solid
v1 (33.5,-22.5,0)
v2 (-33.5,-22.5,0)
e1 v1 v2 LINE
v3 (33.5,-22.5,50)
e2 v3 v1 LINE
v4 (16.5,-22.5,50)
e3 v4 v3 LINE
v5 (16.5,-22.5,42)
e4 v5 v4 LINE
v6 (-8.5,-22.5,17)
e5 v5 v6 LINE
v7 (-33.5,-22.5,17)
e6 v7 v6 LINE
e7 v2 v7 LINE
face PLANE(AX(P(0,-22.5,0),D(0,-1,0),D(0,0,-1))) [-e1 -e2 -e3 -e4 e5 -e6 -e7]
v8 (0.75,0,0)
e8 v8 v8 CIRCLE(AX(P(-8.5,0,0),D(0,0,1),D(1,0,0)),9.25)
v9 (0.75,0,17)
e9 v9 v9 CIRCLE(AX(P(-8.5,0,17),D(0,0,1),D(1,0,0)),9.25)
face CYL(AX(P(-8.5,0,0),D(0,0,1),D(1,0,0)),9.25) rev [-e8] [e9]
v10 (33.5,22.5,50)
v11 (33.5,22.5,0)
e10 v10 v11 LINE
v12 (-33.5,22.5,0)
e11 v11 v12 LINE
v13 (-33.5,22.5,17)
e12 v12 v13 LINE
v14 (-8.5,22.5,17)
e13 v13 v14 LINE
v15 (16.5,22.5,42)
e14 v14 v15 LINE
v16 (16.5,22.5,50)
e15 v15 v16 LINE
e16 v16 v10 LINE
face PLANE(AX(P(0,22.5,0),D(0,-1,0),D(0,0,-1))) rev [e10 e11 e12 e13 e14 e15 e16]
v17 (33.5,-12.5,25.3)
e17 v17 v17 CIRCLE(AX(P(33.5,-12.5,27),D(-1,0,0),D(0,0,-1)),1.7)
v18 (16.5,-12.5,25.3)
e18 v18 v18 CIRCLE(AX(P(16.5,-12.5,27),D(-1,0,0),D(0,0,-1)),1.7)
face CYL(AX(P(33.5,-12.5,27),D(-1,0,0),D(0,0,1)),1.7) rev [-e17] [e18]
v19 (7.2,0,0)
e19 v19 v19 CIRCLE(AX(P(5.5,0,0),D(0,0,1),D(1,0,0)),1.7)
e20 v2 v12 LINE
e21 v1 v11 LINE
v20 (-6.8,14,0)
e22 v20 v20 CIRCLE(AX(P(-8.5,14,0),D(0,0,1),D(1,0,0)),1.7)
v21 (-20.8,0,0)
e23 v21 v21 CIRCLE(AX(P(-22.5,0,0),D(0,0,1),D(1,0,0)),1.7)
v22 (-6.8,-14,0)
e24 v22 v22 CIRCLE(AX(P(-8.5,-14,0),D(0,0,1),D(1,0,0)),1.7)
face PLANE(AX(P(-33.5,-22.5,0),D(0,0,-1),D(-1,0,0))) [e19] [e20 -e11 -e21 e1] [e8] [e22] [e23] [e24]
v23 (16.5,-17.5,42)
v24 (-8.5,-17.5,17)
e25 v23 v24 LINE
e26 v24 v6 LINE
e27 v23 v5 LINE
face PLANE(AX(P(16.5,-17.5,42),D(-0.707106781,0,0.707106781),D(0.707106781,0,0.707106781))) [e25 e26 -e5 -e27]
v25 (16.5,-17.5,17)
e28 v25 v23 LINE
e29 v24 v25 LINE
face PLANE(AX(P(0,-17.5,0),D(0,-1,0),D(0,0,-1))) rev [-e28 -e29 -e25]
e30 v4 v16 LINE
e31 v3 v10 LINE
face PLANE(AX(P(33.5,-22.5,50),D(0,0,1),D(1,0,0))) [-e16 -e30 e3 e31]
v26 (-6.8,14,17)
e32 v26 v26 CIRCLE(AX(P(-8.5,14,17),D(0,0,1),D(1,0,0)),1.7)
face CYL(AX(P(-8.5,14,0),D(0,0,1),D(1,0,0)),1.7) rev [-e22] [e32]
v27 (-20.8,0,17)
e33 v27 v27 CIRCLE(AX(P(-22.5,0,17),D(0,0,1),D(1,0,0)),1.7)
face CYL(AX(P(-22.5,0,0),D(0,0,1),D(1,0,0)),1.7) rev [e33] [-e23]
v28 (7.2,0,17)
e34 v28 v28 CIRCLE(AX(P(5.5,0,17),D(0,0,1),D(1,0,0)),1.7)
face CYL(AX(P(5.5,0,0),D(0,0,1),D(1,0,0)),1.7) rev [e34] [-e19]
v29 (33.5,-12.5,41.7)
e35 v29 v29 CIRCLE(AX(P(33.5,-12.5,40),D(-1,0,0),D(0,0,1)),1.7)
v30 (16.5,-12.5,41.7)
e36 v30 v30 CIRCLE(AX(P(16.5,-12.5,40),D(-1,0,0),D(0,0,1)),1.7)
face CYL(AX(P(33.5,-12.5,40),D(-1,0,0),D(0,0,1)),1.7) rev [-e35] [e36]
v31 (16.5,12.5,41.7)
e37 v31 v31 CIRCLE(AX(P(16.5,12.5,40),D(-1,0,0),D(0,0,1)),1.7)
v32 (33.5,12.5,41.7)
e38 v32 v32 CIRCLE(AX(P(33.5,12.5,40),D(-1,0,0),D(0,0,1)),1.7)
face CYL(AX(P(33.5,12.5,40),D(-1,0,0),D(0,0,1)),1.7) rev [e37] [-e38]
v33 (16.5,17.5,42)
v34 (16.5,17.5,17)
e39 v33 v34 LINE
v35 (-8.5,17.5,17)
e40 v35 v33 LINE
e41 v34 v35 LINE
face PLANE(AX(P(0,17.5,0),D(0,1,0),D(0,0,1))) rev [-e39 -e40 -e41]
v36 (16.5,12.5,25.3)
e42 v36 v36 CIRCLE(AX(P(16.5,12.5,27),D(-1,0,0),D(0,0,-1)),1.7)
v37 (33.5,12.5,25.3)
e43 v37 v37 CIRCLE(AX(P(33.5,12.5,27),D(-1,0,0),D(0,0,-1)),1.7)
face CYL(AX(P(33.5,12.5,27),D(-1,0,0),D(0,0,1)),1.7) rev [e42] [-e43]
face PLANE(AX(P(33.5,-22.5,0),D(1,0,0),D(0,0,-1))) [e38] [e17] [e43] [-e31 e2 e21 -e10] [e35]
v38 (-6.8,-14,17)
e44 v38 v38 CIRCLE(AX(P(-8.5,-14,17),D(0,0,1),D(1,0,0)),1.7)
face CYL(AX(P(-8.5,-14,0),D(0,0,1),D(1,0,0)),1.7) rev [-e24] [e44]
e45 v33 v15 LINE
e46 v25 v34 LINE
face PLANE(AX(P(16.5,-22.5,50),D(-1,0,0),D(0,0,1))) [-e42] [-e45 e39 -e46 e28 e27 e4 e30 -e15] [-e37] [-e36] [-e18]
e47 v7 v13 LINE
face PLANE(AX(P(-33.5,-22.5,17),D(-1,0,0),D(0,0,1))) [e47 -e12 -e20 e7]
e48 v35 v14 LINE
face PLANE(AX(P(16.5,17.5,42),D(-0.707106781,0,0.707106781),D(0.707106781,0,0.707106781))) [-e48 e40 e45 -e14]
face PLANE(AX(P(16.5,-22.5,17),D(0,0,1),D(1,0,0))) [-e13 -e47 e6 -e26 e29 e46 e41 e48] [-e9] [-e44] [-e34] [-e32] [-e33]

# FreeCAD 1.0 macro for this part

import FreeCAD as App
import Part
import Sketcher

doc = App.newDocument("Part")
body = doc.addObject("PartDesign::Body", "Body")

sketch1 = body.newObject("Sketcher::SketchObject", "Sketch")
sketch1.AttachmentSupport = (doc.getObject("XZ_Plane"), [""])
sketch1.MapMode = "FlatFace"
sketch1.addGeometry([
    Part.LineSegment(App.Vector(16, 50, 0), App.Vector(34, 50, 0)),
    Part.LineSegment(App.Vector(34, 50, 0), App.Vector(34, 0, 0)),
    Part.LineSegment(App.Vector(34, 0, 0), App.Vector(-34, 0, 0)),
    Part.LineSegment(App.Vector(-34, 0, 0), App.Vector(-34, 17, 0)),
    Part.LineSegment(App.Vector(-34, 17, 0), App.Vector(16, 17, 0)),
    Part.LineSegment(App.Vector(16, 17, 0), App.Vector(16, 50, 0)),
], False)
sketch1.addConstraint([
    Sketcher.Constraint("Coincident", 0, 2, 1, 1),
    Sketcher.Constraint("Coincident", 1, 2, 2, 1),
    Sketcher.Constraint("Coincident", 2, 2, 3, 1),
    Sketcher.Constraint("Coincident", 3, 2, 4, 1),
    Sketcher.Constraint("Coincident", 4, 2, 5, 1),
    Sketcher.Constraint("Coincident", 5, 2, 0, 1),
    Sketcher.Constraint("Horizontal", 0),
    Sketcher.Constraint("Vertical", 1),
    Sketcher.Constraint("Horizontal", 2),
    Sketcher.Constraint("Vertical", 3),
    Sketcher.Constraint("Horizontal", 4),
    Sketcher.Constraint("Vertical", 5),
    Sketcher.Constraint("Symmetric", 1, 2, 2, 2, -1, 1),
    Sketcher.Constraint("Equal", 4, 1),
    Sketcher.Constraint("Equal", 0, 3),
    Sketcher.Constraint("DistanceX", 0, 1, 0, 2, 17.0),
    Sketcher.Constraint("DistanceX", 2, 2, 2, 1, 67.0),
])
pad1 = body.newObject("PartDesign::Pad", "Pad")
pad1.Profile = sketch1
pad1.Length = 45
pad1.Midplane = True

sketch2 = body.newObject("Sketcher::SketchObject", "Sketch001")
sketch2.AttachmentSupport = (doc.getObject("XY_Plane"), [""])
sketch2.MapMode = "FlatFace"
sketch2.AttachmentOffset = App.Placement(App.Vector(0, 0, 17), App.Rotation())
sketch2.addGeometry([
    Part.Circle(App.Vector(-8.5, 0, 0), App.Vector(0, 0, 1), 9.2),
    Part.Circle(App.Vector(-8.5, 14, 0), App.Vector(0, 0, 1), 1.7),
    Part.Circle(App.Vector(5.5, 0, 0), App.Vector(0, 0, 1), 1.7),
    Part.Circle(App.Vector(-8.5, -14, 0), App.Vector(0, 0, 1), 1.7),
    Part.Circle(App.Vector(-22.5, 0, 0), App.Vector(0, 0, 1), 1.7),
], False)
sketch2.addConstraint([
    Sketcher.Constraint("Equal", 1, 2),
    Sketcher.Constraint("Equal", 2, 3),
    Sketcher.Constraint("Equal", 3, 4),
    Sketcher.Constraint("Symmetric", 1, 3, 3, 3, -1),
    Sketcher.Constraint("PointOnObject", 0, 3, -1),
    Sketcher.Constraint("PointOnObject", 2, 3, -1),
    Sketcher.Constraint("PointOnObject", 4, 3, -1),
    Sketcher.Constraint("Vertical", 0, 3, 1, 3),
    Sketcher.Constraint("Diameter", 0, 18.5),
    Sketcher.Constraint("Diameter", 1, 3.4),
    Sketcher.Constraint("DistanceY", -1, 1, 1, 3, 14.0),
    Sketcher.Constraint("DistanceX", 0, 3, 2, 3, 14.0),
    Sketcher.Constraint("DistanceX", 4, 3, 0, 3, 14.0),
    Sketcher.Constraint("DistanceX", 0, 3, -1, 1, 8.5),
])
pocket1 = body.newObject("PartDesign::Pocket", "Pocket")
pocket1.Profile = sketch2
pocket1.Type = "ThroughAll"

sketch3 = body.newObject("Sketcher::SketchObject", "Sketch002")
sketch3.AttachmentSupport = (doc.getObject("YZ_Plane"), [""])
sketch3.MapMode = "FlatFace"
sketch3.AttachmentOffset = App.Placement(App.Vector(0, 0, 16.5), App.Rotation())
sketch3.addGeometry([
    Part.Circle(App.Vector(-12.5, 40, 0), App.Vector(0, 0, 1), 1.7),
    Part.Circle(App.Vector(12.5, 40, 0), App.Vector(0, 0, 1), 1.7),
    Part.Circle(App.Vector(-12.5, 27, 0), App.Vector(0, 0, 1), 1.7),
    Part.Circle(App.Vector(12.5, 27, 0), App.Vector(0, 0, 1), 1.7),
], False)
sketch3.addConstraint([
    Sketcher.Constraint("Equal", 0, 1),
    Sketcher.Constraint("Equal", 1, 2),
    Sketcher.Constraint("Equal", 2, 3),
    Sketcher.Constraint("Symmetric", 0, 3, 1, 3, -2),
    Sketcher.Constraint("Symmetric", 2, 3, 3, 3, -2),
    Sketcher.Constraint("Vertical", 0, 3, 2, 3),
    Sketcher.Constraint("Diameter", 0, 3.4),
    Sketcher.Constraint("DistanceY", -1, 1, 0, 3, 40.0),
    Sketcher.Constraint("DistanceY", -1, 1, 2, 3, 27.0),
    Sketcher.Constraint("DistanceX", 0, 3, 1, 3, 25.0),
])
pocket2 = body.newObject("PartDesign::Pocket", "Pocket001")
pocket2.Profile = sketch3
pocket2.Type = "ThroughAll"
pocket2.Reversed = True

sketch4 = body.newObject("Sketcher::SketchObject", "Sketch003")
sketch4.AttachmentSupport = (doc.getObject("XZ_Plane"), [""])
sketch4.MapMode = "FlatFace"
sketch4.AttachmentOffset = App.Placement(App.Vector(0, 0, -22.5), App.Rotation())
sketch4.addGeometry([
    Part.LineSegment(App.Vector(-8, 17, 0), App.Vector(16, 42, 0)),
    Part.LineSegment(App.Vector(16, 42, 0), App.Vector(16, 17, 0)),
    Part.LineSegment(App.Vector(16, 17, 0), App.Vector(-8, 17, 0)),
], False)
sketch4.addConstraint([
    Sketcher.Constraint("Coincident", 0, 2, 1, 1),
    Sketcher.Constraint("Coincident", 1, 2, 2, 1),
    Sketcher.Constraint("Coincident", 2, 2, 0, 1),
    Sketcher.Constraint("Vertical", 1),
    Sketcher.Constraint("Horizontal", 2),
    Sketcher.Constraint("Equal", 2, 1),
    Sketcher.Constraint("DistanceX", 2, 2, 2, 1, 25.0),
    Sketcher.Constraint("DistanceY", -1, 1, 0, 2, 42.0),
    Sketcher.Constraint("DistanceX", -1, 1, 0, 2, 16.5),
])
pad2 = body.newObject("PartDesign::Pad", "Pad001")
pad2.Profile = sketch4
pad2.Length = 5

sketch5 = body.newObject("Sketcher::SketchObject", "Sketch004")
sketch5.AttachmentSupport = (doc.getObject("XZ_Plane"), [""])
sketch5.MapMode = "FlatFace"
sketch5.AttachmentOffset = App.Placement(App.Vector(0, 0, 22.5), App.Rotation())
sketch5.addGeometry([
    Part.LineSegment(App.Vector(-8, 17, 0), App.Vector(16, 17, 0)),
    Part.LineSegment(App.Vector(16, 17, 0), App.Vector(16, 42, 0)),
    Part.LineSegment(App.Vector(16, 42, 0), App.Vector(-8, 17, 0)),
], False)
sketch5.addConstraint([
    Sketcher.Constraint("Coincident", 0, 2, 1, 1),
    Sketcher.Constraint("Coincident", 1, 2, 2, 1),
    Sketcher.Constraint("Coincident", 2, 2, 0, 1),
    Sketcher.Constraint("Horizontal", 0),
    Sketcher.Constraint("Vertical", 1),
    Sketcher.Constraint("Equal", 0, 1),
    Sketcher.Constraint("DistanceX", 0, 1, 0, 2, 25.0),
    Sketcher.Constraint("DistanceY", -1, 1, 0, 2, 17.0),
    Sketcher.Constraint("DistanceX", -1, 1, 0, 2, 16.5),
])
pad3 = body.newObject("PartDesign::Pad", "Pad002")
pad3.Profile = sketch5
pad3.Length = 5
pad3.Reversed = True

doc.recompute()
